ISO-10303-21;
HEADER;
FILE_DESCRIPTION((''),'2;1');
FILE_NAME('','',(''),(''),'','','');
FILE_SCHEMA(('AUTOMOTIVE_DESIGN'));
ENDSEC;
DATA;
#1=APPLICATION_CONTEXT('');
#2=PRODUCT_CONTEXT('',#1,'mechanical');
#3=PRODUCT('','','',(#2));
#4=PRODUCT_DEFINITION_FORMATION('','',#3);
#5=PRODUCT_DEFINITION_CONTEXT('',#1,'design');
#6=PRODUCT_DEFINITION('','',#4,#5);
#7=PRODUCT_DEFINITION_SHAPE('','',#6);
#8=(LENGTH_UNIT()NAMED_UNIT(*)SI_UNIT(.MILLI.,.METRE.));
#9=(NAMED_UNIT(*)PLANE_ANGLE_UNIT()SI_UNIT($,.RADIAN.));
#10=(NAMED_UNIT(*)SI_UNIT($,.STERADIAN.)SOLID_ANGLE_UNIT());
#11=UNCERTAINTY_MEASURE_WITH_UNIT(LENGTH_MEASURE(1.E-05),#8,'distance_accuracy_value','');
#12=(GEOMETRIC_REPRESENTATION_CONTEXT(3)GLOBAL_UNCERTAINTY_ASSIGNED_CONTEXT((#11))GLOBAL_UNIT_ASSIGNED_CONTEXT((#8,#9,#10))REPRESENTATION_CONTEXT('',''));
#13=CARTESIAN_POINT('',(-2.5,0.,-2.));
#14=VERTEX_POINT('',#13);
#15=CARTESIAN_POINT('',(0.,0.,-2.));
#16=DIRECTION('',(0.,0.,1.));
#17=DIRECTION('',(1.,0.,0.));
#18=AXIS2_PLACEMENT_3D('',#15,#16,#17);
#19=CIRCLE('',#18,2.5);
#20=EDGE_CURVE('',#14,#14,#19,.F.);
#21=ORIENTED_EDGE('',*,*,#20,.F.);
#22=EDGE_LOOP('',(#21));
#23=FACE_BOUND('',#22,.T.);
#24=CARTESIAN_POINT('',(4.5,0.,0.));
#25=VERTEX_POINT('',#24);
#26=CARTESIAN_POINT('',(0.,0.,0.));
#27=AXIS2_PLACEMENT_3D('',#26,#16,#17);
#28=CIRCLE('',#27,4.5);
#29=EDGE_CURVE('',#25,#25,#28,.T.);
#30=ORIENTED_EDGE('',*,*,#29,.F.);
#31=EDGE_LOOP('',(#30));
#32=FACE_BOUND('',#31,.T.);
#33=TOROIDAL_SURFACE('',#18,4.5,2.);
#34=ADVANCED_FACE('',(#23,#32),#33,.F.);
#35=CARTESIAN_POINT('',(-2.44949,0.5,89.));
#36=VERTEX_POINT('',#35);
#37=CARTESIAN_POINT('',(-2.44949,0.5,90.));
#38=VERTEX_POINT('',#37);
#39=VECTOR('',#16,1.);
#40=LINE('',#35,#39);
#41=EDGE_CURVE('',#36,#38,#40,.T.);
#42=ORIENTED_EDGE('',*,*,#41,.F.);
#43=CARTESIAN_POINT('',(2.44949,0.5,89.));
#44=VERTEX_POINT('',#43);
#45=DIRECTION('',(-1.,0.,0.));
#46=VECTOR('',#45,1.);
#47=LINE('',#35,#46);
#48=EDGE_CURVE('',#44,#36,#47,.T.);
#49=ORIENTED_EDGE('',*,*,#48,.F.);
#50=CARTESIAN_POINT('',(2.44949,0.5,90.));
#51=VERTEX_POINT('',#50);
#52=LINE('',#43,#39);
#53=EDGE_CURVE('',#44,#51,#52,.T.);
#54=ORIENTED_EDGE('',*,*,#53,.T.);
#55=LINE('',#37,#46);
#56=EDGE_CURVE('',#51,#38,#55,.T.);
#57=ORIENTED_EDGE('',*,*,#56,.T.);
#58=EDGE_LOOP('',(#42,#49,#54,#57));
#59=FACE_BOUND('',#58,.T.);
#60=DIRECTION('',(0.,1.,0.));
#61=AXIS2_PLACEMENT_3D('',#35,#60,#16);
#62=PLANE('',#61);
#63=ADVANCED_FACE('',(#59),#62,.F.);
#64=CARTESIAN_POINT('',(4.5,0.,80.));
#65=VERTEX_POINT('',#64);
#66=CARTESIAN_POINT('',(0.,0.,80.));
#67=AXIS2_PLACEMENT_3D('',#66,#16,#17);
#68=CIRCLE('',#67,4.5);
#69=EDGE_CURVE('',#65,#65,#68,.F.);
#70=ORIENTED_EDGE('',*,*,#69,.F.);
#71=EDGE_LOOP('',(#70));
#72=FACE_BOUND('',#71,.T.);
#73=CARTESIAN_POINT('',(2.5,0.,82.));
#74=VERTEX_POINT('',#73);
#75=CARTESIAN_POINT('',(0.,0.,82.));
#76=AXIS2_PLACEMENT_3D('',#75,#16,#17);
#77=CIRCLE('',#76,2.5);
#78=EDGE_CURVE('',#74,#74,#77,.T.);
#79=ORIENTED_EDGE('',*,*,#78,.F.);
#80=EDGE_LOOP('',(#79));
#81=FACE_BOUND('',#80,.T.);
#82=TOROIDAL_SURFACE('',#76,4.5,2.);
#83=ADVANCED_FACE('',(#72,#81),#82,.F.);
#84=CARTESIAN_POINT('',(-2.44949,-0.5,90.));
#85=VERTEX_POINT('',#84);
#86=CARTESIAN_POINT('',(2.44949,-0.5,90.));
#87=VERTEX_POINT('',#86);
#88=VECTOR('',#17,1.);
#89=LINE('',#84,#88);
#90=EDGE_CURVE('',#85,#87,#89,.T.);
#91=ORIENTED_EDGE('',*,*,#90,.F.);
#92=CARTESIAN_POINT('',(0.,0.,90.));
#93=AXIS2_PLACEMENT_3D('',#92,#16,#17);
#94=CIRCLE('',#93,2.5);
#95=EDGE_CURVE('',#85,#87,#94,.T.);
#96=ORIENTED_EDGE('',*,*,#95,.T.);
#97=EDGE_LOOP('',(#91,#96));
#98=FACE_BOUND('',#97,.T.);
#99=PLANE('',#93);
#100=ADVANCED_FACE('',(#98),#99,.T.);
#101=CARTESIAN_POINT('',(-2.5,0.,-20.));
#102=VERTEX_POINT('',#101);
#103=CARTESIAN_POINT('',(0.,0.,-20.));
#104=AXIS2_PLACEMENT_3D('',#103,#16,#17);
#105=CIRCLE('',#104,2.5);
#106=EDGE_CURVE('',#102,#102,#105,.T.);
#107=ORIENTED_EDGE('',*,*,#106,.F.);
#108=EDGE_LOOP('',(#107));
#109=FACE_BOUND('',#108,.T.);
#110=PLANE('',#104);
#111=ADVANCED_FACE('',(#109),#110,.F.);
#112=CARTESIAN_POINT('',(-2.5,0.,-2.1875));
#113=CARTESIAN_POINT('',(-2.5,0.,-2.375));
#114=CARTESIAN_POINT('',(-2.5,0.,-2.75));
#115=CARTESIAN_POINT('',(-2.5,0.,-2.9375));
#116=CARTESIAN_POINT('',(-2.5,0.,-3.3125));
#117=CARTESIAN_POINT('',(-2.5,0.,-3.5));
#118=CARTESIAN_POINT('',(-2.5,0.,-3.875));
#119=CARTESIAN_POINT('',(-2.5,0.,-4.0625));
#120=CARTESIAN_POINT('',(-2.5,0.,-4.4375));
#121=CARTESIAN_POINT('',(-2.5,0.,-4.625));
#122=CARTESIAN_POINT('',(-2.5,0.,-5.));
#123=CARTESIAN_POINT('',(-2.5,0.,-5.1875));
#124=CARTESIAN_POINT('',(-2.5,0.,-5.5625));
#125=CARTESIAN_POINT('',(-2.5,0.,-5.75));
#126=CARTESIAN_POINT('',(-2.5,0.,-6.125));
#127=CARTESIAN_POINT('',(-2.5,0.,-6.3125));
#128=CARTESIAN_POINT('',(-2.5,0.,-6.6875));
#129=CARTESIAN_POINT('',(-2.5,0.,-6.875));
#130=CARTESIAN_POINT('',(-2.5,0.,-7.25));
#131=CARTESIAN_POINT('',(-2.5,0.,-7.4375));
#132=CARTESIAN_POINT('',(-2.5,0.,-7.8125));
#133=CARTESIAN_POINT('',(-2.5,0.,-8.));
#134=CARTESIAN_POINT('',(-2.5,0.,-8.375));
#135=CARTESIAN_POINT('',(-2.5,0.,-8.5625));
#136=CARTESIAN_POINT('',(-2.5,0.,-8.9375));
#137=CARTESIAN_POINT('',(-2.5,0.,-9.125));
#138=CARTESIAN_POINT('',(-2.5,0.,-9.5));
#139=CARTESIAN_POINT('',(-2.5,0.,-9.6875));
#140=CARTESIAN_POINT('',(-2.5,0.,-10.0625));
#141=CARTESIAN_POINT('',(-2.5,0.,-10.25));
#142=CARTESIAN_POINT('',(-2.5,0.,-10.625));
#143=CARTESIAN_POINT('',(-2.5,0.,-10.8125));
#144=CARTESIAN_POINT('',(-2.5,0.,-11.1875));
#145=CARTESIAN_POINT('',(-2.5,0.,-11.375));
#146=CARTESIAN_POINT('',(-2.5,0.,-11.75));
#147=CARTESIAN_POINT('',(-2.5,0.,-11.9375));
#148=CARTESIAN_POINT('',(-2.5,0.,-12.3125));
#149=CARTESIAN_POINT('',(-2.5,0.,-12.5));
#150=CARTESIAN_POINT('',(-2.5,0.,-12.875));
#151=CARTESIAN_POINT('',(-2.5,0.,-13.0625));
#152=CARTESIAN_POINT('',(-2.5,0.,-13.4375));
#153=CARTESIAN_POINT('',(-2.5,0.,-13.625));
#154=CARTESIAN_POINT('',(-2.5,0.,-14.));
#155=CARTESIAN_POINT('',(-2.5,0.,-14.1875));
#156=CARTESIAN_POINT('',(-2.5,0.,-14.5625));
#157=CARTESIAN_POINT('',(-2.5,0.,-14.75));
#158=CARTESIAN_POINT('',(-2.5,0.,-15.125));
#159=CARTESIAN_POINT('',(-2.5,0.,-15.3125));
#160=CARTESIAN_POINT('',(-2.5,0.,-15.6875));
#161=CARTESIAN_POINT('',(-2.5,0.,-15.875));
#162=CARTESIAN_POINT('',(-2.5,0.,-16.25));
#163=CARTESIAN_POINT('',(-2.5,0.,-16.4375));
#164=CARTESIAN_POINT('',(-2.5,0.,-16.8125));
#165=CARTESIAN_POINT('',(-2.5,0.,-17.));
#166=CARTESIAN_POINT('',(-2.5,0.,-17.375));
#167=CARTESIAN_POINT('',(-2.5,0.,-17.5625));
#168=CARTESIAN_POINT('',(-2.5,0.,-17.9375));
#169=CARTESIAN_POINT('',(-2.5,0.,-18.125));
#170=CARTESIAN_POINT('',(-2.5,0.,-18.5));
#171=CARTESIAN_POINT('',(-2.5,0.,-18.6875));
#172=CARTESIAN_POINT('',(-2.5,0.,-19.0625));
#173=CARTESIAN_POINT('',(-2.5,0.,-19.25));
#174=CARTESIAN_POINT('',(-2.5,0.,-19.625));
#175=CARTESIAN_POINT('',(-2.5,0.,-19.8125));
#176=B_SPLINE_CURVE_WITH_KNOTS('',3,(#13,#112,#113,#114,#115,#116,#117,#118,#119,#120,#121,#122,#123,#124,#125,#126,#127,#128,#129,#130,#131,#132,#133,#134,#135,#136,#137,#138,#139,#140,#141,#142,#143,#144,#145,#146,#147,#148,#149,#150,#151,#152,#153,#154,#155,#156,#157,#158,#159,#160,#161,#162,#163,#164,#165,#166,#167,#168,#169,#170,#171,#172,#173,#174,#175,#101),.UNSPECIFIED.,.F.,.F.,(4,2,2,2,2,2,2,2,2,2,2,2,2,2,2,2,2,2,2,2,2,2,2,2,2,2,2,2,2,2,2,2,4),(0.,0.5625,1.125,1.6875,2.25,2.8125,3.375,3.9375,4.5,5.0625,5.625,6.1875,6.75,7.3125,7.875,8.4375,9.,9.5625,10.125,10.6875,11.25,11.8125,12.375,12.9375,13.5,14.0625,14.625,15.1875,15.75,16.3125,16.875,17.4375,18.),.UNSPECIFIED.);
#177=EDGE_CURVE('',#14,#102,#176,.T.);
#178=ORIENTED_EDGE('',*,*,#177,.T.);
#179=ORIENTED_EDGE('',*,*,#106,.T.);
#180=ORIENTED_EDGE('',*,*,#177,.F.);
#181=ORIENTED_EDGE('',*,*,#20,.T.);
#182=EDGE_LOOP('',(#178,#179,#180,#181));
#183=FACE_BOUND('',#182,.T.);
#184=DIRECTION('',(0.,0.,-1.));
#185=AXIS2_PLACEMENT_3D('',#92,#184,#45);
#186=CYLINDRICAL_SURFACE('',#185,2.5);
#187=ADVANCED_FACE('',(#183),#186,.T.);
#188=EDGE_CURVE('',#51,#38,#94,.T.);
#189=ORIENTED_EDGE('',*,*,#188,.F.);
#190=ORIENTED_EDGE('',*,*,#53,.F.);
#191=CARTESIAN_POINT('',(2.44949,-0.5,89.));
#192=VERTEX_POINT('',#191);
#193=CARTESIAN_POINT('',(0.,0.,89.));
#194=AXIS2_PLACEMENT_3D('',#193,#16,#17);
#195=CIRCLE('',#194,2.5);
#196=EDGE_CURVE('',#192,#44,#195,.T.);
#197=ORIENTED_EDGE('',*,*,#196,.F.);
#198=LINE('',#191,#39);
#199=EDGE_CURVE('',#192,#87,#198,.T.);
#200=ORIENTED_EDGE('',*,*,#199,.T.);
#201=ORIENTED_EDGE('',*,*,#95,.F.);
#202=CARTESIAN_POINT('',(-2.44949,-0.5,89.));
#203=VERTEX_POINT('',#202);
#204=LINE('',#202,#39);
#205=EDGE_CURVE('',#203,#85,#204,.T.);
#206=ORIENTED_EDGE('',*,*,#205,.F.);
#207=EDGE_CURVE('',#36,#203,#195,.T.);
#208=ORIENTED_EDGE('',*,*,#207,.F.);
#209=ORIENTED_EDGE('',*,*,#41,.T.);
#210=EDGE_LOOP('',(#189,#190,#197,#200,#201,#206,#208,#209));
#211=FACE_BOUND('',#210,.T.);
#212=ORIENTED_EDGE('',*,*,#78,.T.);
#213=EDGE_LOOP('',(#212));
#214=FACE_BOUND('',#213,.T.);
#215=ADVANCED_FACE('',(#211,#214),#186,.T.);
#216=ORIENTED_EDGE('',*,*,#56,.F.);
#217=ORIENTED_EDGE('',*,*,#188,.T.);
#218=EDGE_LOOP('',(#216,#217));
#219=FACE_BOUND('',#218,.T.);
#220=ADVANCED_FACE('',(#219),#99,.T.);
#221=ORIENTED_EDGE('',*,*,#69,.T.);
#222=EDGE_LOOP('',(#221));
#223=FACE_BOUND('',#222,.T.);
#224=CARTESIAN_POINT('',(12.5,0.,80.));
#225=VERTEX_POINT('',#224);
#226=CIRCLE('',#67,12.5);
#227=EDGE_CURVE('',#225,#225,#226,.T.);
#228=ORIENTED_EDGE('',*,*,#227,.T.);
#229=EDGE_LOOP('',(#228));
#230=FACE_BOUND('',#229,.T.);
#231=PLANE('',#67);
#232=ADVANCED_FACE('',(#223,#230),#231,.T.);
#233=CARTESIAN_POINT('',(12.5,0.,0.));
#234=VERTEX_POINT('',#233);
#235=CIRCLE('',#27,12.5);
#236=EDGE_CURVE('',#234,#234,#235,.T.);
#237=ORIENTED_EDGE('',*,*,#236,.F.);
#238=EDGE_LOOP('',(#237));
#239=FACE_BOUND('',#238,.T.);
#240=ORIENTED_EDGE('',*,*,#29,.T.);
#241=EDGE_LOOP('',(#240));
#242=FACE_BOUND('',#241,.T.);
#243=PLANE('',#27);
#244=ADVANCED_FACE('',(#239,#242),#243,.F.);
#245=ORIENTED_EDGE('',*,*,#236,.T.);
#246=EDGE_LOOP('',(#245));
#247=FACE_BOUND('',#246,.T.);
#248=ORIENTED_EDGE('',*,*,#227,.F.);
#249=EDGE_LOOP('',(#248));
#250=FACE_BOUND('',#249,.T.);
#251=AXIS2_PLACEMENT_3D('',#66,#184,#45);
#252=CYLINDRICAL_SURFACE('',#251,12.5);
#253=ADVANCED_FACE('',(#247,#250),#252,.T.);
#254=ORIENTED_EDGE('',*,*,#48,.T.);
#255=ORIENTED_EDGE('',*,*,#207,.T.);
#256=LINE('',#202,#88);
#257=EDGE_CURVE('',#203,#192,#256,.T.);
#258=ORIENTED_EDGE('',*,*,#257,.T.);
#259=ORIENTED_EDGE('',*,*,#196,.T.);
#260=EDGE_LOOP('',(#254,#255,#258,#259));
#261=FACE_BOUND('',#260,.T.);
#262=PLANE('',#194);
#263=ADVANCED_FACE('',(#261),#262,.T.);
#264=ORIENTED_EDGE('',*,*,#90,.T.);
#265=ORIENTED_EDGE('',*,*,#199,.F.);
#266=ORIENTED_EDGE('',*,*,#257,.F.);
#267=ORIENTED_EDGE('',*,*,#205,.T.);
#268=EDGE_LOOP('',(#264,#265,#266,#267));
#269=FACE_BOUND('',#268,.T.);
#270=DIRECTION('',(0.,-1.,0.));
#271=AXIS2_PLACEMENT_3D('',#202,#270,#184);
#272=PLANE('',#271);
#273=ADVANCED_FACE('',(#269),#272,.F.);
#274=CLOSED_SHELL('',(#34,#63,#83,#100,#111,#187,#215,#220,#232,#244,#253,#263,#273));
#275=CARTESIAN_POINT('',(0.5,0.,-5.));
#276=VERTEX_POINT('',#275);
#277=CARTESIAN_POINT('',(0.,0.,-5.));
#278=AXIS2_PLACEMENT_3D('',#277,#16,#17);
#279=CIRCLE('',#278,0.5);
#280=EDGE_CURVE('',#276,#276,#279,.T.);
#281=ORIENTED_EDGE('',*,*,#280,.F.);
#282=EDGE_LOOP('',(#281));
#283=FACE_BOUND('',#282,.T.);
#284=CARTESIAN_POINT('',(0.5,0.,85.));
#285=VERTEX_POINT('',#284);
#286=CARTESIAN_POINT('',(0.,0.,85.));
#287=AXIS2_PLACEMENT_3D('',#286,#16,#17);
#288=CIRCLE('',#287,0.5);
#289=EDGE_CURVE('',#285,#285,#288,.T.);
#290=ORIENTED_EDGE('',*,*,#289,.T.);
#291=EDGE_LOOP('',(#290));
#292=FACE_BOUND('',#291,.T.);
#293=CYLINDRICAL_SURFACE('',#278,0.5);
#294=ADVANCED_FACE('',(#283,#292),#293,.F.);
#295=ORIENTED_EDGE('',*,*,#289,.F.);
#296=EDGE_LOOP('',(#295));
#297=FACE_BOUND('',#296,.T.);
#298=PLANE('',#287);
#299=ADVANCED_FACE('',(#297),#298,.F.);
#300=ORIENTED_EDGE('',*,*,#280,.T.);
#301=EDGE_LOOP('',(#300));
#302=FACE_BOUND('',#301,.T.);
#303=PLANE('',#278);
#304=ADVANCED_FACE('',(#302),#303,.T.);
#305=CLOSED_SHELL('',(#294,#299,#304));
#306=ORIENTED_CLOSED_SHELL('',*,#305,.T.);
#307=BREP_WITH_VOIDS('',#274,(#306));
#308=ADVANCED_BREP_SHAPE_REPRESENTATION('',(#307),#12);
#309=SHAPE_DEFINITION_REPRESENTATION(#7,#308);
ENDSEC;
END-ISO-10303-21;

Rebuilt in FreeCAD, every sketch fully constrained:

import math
import FreeCAD as App
import Part
import Sketcher
Q = App.Units.Quantity


def edges_at(feature, points):
    """Names of the edges that pass closest to the given points."""
    edges = feature.Shape.Edges
    near = lambda p: min(range(len(edges)), key=lambda i: edges[i].distToShape(Part.Vertex(*p))[0])
    return sorted({f"Edge{near(p) + 1}" for p in points})

doc = App.newDocument("Part")
params = doc.addObject("Spreadsheet::Sheet", "Params")
for row, (alias, value) in enumerate([
    ("sketch1_diameter", "25 mm"),
    ("pad1_length", "80 mm"),
    ("sketch2_diameter", "5 mm"),
    ("pad2_length", "90 mm"),
    ("pad2_length2", "20 mm"),
    ("fillet_radius", "2 mm"),
    ("fillet2_radius", "2 mm"),
    ("sketch3_diameter", "1 mm"),
    ("pocket1_length", "90 mm"),
    ("sketch4_radius", "2.5 mm"),
    ("pocket2_length", "1 mm"),
], start=1):
    params.set(f"A{row}", alias)
    params.set(f"B{row}", "=" + value)
    params.setAlias(f"B{row}", alias)

body = doc.addObject("PartDesign::Body", "Body")

# Sketch on XY plane
sketch1 = doc.addObject("Sketcher::SketchObject", "Sketch")
body.addObject(sketch1)
sketch1.AttachmentSupport = (doc.XY_Plane, [""])
sketch1.MapMode = "FlatFace"
sketch1.addGeometry(Part.Circle(App.Vector(0, 0, 0), App.Vector(0, 0, 1), 12), False)
sketch1.addConstraint([
    Sketcher.Constraint("Coincident", 0, 3, -1, 1),
    Sketcher.Constraint("Diameter", 0, Q("25 mm")),
])
sketch1.setExpression("Constraints[1]", "Params.sketch1_diameter")
pad1 = doc.addObject("PartDesign::Pad", "Pad")
body.addObject(pad1)
pad1.Profile = sketch1
pad1.setExpression("Length", "Params.pad1_length")

# Sketch on XY plane
sketch2 = doc.addObject("Sketcher::SketchObject", "Sketch001")
body.addObject(sketch2)
sketch2.AttachmentSupport = (doc.XY_Plane, [""])
sketch2.MapMode = "FlatFace"
sketch2.addGeometry(Part.Circle(App.Vector(0, 0, 0), App.Vector(0, 0, 1), 2.5), False)
sketch2.addConstraint([
    Sketcher.Constraint("Coincident", 0, 3, -1, 1),
    Sketcher.Constraint("Diameter", 0, Q("5 mm")),
])
sketch2.setExpression("Constraints[1]", "Params.sketch2_diameter")
pad2 = doc.addObject("PartDesign::Pad", "Pad001")
body.addObject(pad2)
pad2.Profile = sketch2
pad2.Type = "TwoLengths"
pad2.setExpression("Length", "Params.pad2_length")
pad2.setExpression("Length2", "Params.pad2_length2")
doc.recompute()

fillet = doc.addObject("PartDesign::Fillet", "Fillet")
body.addObject(fillet)
fillet.Base = (pad2, edges_at(pad2, [(2.5, 0, 80)]))
fillet.setExpression("Radius", "Params.fillet_radius")
doc.recompute()

fillet2 = doc.addObject("PartDesign::Fillet", "Fillet001")
body.addObject(fillet2)
fillet2.Base = (fillet, edges_at(fillet, [(2.5, 0, 0)]))
fillet2.setExpression("Radius", "Params.fillet2_radius")

# Sketch on XY plane
sketch3 = doc.addObject("Sketcher::SketchObject", "Sketch002")
body.addObject(sketch3)
sketch3.AttachmentSupport = (doc.XY_Plane, [""])
sketch3.MapMode = "FlatFace"
sketch3.AttachmentOffset = App.Placement(App.Vector(0, 0, 85), App.Rotation())
sketch3.addGeometry(Part.Circle(App.Vector(0, 0, 0), App.Vector(0, 0, 1), 0.5), False)
sketch3.addConstraint([
    Sketcher.Constraint("Coincident", 0, 3, -1, 1),
    Sketcher.Constraint("Diameter", 0, Q("1 mm")),
])
sketch3.setExpression("Constraints[1]", "Params.sketch3_diameter")
pocket1 = doc.addObject("PartDesign::Pocket", "Pocket")
body.addObject(pocket1)
pocket1.Profile = sketch3
pocket1.setExpression("Length", "Params.pocket1_length")

# Sketch on XY plane
sketch4 = doc.addObject("Sketcher::SketchObject", "Sketch003")
body.addObject(sketch4)
sketch4.AttachmentSupport = (doc.XY_Plane, [""])
sketch4.MapMode = "FlatFace"
sketch4.AttachmentOffset = App.Placement(App.Vector(0, 0, 90), App.Rotation())
sketch4.addGeometry([
    Part.LineSegment(App.Vector(-2.4, -0.5, 0), App.Vector(2.4, -0.5, 0)),
    Part.ArcOfCircle(Part.Circle(App.Vector(0, 0, 0), App.Vector(0, 0, 1), 2.5), math.radians(-12), math.radians(12)),
    Part.LineSegment(App.Vector(2.4, 0.5, 0), App.Vector(-2.4, 0.5, 0)),
    Part.ArcOfCircle(Part.Circle(App.Vector(0, 0, 0), App.Vector(0, 0, 1), 2.5), math.radians(168), math.radians(192)),
], False)
sketch4.addConstraint([
    Sketcher.Constraint("Coincident", 0, 2, 1, 1),
    Sketcher.Constraint("Coincident", 1, 2, 2, 1),
    Sketcher.Constraint("Coincident", 2, 2, 3, 1),
    Sketcher.Constraint("Coincident", 3, 2, 0, 1),
    Sketcher.Constraint("Horizontal", 0),
    Sketcher.Constraint("Horizontal", 2),
    Sketcher.Constraint("Coincident", 1, 3, -1, 1),
    Sketcher.Constraint("Coincident", 3, 3, -1, 1),
    Sketcher.Constraint("Equal", 1, 3),
    Sketcher.Constraint("Vertical", 0, 2, 1, 2),
    Sketcher.Constraint("Radius", 1, Q("2.5 mm")),
    Sketcher.Constraint("DistanceY", 0, 2, 1, 2, Q("1 mm")),
])
sketch4.setExpression("Constraints[10]", "Params.sketch4_radius")
pocket2 = doc.addObject("PartDesign::Pocket", "Pocket001")
body.addObject(pocket2)
pocket2.Profile = sketch4
pocket2.setExpression("Length", "Params.pocket2_length")

doc.recompute()
